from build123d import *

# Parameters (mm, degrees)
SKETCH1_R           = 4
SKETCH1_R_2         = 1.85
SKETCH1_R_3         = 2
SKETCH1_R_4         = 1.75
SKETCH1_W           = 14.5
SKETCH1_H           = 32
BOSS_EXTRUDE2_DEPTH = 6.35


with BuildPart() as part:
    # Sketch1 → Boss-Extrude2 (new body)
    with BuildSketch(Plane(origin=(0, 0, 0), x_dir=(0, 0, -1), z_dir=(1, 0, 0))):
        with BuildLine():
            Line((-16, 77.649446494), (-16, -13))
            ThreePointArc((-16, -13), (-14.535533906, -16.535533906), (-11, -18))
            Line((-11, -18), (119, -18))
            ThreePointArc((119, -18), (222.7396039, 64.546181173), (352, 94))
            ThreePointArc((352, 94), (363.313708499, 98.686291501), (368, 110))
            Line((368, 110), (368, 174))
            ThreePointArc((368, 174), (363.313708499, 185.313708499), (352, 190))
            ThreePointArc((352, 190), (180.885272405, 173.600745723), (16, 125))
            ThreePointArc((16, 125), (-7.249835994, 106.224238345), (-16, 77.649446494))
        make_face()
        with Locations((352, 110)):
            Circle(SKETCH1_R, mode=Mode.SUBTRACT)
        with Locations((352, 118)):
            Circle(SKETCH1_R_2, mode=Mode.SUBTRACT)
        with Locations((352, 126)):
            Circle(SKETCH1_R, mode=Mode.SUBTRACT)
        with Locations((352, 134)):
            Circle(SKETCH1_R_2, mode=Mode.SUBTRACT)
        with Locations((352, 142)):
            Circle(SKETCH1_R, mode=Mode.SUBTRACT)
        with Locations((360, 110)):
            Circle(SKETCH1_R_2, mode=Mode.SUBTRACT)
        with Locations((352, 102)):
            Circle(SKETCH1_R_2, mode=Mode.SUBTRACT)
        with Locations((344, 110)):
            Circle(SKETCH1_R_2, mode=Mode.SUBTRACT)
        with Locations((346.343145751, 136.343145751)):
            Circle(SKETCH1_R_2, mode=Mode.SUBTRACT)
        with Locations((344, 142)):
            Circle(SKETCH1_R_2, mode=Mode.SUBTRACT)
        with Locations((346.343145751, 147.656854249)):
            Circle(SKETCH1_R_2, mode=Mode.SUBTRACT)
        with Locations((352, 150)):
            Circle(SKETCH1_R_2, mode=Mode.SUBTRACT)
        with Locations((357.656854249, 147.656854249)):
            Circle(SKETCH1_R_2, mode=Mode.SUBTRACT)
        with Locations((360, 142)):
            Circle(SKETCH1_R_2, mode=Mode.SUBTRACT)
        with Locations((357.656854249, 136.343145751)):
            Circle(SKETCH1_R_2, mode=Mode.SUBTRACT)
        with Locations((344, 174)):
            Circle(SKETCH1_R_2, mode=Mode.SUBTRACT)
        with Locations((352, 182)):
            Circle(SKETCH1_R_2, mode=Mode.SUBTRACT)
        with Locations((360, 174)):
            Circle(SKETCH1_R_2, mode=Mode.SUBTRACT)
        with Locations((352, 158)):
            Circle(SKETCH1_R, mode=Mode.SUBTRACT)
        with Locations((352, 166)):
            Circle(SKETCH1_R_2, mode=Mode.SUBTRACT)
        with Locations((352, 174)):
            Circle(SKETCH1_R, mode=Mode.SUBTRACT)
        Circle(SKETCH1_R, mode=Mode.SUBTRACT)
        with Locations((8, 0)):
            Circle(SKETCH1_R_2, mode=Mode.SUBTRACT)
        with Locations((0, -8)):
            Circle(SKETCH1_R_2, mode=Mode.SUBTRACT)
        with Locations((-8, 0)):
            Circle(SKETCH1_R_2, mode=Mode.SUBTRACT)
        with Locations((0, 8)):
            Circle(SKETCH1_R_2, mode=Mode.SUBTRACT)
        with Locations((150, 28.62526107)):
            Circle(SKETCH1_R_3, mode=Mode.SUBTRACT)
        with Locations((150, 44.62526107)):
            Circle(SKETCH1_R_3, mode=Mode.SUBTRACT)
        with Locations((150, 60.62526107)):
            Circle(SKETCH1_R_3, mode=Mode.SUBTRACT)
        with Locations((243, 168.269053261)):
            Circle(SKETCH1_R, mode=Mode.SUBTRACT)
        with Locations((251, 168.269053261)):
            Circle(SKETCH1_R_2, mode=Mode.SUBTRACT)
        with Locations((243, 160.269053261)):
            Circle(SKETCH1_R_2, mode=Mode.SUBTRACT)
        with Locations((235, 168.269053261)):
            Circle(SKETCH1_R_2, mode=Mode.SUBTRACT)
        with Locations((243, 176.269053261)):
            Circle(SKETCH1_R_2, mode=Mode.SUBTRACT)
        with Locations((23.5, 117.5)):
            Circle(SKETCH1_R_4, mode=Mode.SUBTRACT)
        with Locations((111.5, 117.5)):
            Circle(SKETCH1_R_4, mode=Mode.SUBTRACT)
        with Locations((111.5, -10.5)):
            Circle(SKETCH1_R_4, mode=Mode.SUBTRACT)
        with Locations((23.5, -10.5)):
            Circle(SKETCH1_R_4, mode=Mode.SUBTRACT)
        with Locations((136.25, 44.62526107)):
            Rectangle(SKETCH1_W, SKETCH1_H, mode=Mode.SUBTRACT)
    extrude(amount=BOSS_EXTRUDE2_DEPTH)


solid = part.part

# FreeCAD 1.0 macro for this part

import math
import FreeCAD as App
import Part
import Sketcher


def add_polygon(sketch, points):
    """Adds a closed chain of lines whose ends are joined by coincident constraints."""
    first, n = sketch.GeometryCount, len(points)
    for a, b in zip(points, points[1:] + points[:1]):
        sketch.addGeometry(Part.LineSegment(App.Vector(*a, 0), App.Vector(*b, 0)), False)
    for i in range(n):
        sketch.addConstraint(Sketcher.Constraint("Coincident", first + i, 2, first + (i + 1) % n, 1))

doc = App.newDocument("Part")
params = doc.addObject("Spreadsheet::Sheet", "Params")
for row, (alias, value) in enumerate([
    ("sketch1_diameter", "8 mm"),
    ("sketch1_diameter2", "4 mm"),
    ("sketch1_radius", "5 mm"),
    ("sketch1_radius2", "16 mm"),
    ("sketch1_diameter3", "3.7 mm"),
    ("pad1_length", "6.35 mm"),
], start=1):
    params.set(f"A{row}", alias)
    params.set(f"B{row}", "=" + value)
    params.setAlias(f"B{row}", alias)

body = doc.addObject("PartDesign::Body", "Body")

sketch1 = body.newObject("Sketcher::SketchObject", "Sketch")
sketch1.AttachmentSupport = (doc.getObject("YZ_Plane"), [""])
sketch1.MapMode = "FlatFace"
sketch1.addGeometry(Part.LineSegment(App.Vector(77.6, 16, 0), App.Vector(-13, 16, 0)), False)
sketch1.addGeometry(Part.ArcOfCircle(Part.Circle(App.Vector(-13, 11, 0), App.Vector(0, 0, 1), 5), math.radians(90), math.radians(180)), False)
sketch1.addGeometry(Part.LineSegment(App.Vector(-18, 11, 0), App.Vector(-18, -119, 0)), False)
sketch1.addGeometry(Part.ArcOfCircle(Part.Circle(App.Vector(-204.4, -352, 0), App.Vector(0, 0, 1), 298.4), math.radians(0), math.radians(51)), False)
sketch1.addGeometry(Part.ArcOfCircle(Part.Circle(App.Vector(110, -352, 0), App.Vector(0, 0, 1), 16), math.radians(180), math.radians(270)), False)
sketch1.addGeometry(Part.LineSegment(App.Vector(110, -368, 0), App.Vector(174, -368, 0)), False)
sketch1.addGeometry(Part.ArcOfCircle(Part.Circle(App.Vector(174, -352, 0), App.Vector(0, 0, 1), 16), math.radians(-90), math.radians(0)), False)
sketch1.addGeometry(Part.ArcOfCircle(Part.Circle(App.Vector(-710.9, -352, 0), App.Vector(0, 0, 1), 900.9), math.radians(0), math.radians(22)), False)
sketch1.addGeometry(Part.ArcOfCircle(Part.Circle(App.Vector(77.6, -35, 0), App.Vector(0, 0, 1), 51), math.radians(22), math.radians(90)), False)
sketch1.addGeometry(Part.Circle(App.Vector(-8, 0, 0), App.Vector(0, 0, 1), 1.9), False)
sketch1.addGeometry(Part.Circle(App.Vector(0, 8, 0), App.Vector(0, 0, 1), 1.9), False)
sketch1.addGeometry(Part.Circle(App.Vector(0, 0, 0), App.Vector(0, 0, 1), 4), False)
sketch1.addGeometry(Part.Circle(App.Vector(0, -8, 0), App.Vector(0, 0, 1), 1.9), False)
sketch1.addGeometry(Part.Circle(App.Vector(-10.5, -23.5, 0), App.Vector(0, 0, 1), 1.8), False)
sketch1.addGeometry(Part.Circle(App.Vector(8, 0, 0), App.Vector(0, 0, 1), 1.9), False)
sketch1.addGeometry(Part.Circle(App.Vector(-10.5, -111.5, 0), App.Vector(0, 0, 1), 1.8), False)
sketch1.addGeometry(Part.Circle(App.Vector(28.6, -150, 0), App.Vector(0, 0, 1), 2), False)
add_polygon(sketch1, [(28.6, -143.5), (28.6, -129), (60.6, -129), (60.6, -143.5)])
sketch1.addGeometry(Part.Circle(App.Vector(44.6, -150, 0), App.Vector(0, 0, 1), 2), False)
sketch1.addGeometry(Part.Circle(App.Vector(60.6, -150, 0), App.Vector(0, 0, 1), 2), False)
sketch1.addGeometry(Part.Circle(App.Vector(117.5, -23.5, 0), App.Vector(0, 0, 1), 1.8), False)
sketch1.addGeometry(Part.Circle(App.Vector(117.5, -111.5, 0), App.Vector(0, 0, 1), 1.8), False)
sketch1.addGeometry(Part.Circle(App.Vector(102, -352, 0), App.Vector(0, 0, 1), 1.9), False)
sketch1.addGeometry(Part.Circle(App.Vector(110, -344, 0), App.Vector(0, 0, 1), 1.9), False)
sketch1.addGeometry(Part.Circle(App.Vector(110, -352, 0), App.Vector(0, 0, 1), 4), False)
sketch1.addGeometry(Part.Circle(App.Vector(110, -360, 0), App.Vector(0, 0, 1), 1.9), False)
sketch1.addGeometry(Part.Circle(App.Vector(118, -352, 0), App.Vector(0, 0, 1), 1.9), False)
sketch1.addGeometry(Part.Circle(App.Vector(126, -352, 0), App.Vector(0, 0, 1), 4), False)
sketch1.addGeometry(Part.Circle(App.Vector(134, -352, 0), App.Vector(0, 0, 1), 1.9), False)
sketch1.addGeometry(Part.Circle(App.Vector(160.3, -243, 0), App.Vector(0, 0, 1), 1.9), False)
sketch1.addGeometry(Part.Circle(App.Vector(168.3, -235, 0), App.Vector(0, 0, 1), 1.9), False)
sketch1.addGeometry(Part.Circle(App.Vector(168.3, -243, 0), App.Vector(0, 0, 1), 4), False)
sketch1.addGeometry(Part.Circle(App.Vector(168.3, -251, 0), App.Vector(0, 0, 1), 1.9), False)
sketch1.addGeometry(Part.Circle(App.Vector(176.3, -243, 0), App.Vector(0, 0, 1), 1.9), False)
sketch1.addGeometry(Part.Circle(App.Vector(136.3, -346.3, 0), App.Vector(0, 0, 1), 1.9), False)
sketch1.addGeometry(Part.Circle(App.Vector(136.3, -357.7, 0), App.Vector(0, 0, 1), 1.9), False)
sketch1.addGeometry(Part.Circle(App.Vector(142, -344, 0), App.Vector(0, 0, 1), 1.9), False)
sketch1.addGeometry(Part.Circle(App.Vector(142, -352, 0), App.Vector(0, 0, 1), 4), False)
sketch1.addGeometry(Part.Circle(App.Vector(142, -360, 0), App.Vector(0, 0, 1), 1.9), False)
sketch1.addGeometry(Part.Circle(App.Vector(147.7, -346.3, 0), App.Vector(0, 0, 1), 1.9), False)
sketch1.addGeometry(Part.Circle(App.Vector(150, -352, 0), App.Vector(0, 0, 1), 1.9), False)
sketch1.addGeometry(Part.Circle(App.Vector(147.7, -357.7, 0), App.Vector(0, 0, 1), 1.9), False)
sketch1.addGeometry(Part.Circle(App.Vector(158, -352, 0), App.Vector(0, 0, 1), 4), False)
sketch1.addGeometry(Part.Circle(App.Vector(166, -352, 0), App.Vector(0, 0, 1), 1.9), False)
sketch1.addGeometry(Part.Circle(App.Vector(174, -344, 0), App.Vector(0, 0, 1), 1.9), False)
sketch1.addGeometry(Part.Circle(App.Vector(174, -352, 0), App.Vector(0, 0, 1), 4), False)
sketch1.addGeometry(Part.Circle(App.Vector(174, -360, 0), App.Vector(0, 0, 1), 1.9), False)
sketch1.addGeometry(Part.Circle(App.Vector(182, -352, 0), App.Vector(0, 0, 1), 1.9), False)
sketch1.addConstraint(Sketcher.Constraint("Tangent", 0, 2, 1, 1))
sketch1.addConstraint(Sketcher.Constraint("Tangent", 1, 2, 2, 1))
sketch1.addConstraint(Sketcher.Constraint("Coincident", 2, 2, 3, 2))
sketch1.addConstraint(Sketcher.Constraint("Tangent", 3, 1, 4, 1))
sketch1.addConstraint(Sketcher.Constraint("Tangent", 4, 2, 5, 1))
sketch1.addConstraint(Sketcher.Constraint("Tangent", 5, 2, 6, 1))
sketch1.addConstraint(Sketcher.Constraint("Tangent", 6, 2, 7, 1))
sketch1.addConstraint(Sketcher.Constraint("Tangent", 7, 2, 8, 1))
sketch1.addConstraint(Sketcher.Constraint("Tangent", 8, 2, 0, 1))
sketch1.addConstraint(Sketcher.Constraint("Horizontal", 0))
sketch1.addConstraint(Sketcher.Constraint("Vertical", 2))
sketch1.addConstraint(Sketcher.Constraint("Horizontal", 5))
sketch1.addConstraint(Sketcher.Constraint("Vertical", 17))
sketch1.addConstraint(Sketcher.Constraint("Horizontal", 18))
sketch1.addConstraint(Sketcher.Constraint("Vertical", 19))
sketch1.addConstraint(Sketcher.Constraint("Horizontal", 20))
sketch1.addConstraint(Sketcher.Constraint("Coincident", 11, 3, -1, 1))
sketch1.addConstraint(Sketcher.Constraint("Coincident", 27, 3, 4, 3))
sketch1.addConstraint(Sketcher.Constraint("Coincident", 48, 3, 6, 3))
sketch1.addConstraint(Sketcher.Constraint("Equal", 4, 6))
sketch1.addConstraint(Sketcher.Constraint("Equal", 9, 10))
sketch1.addConstraint(Sketcher.Constraint("Equal", 10, 12))
sketch1.addConstraint(Sketcher.Constraint("Equal", 12, 14))
sketch1.addConstraint(Sketcher.Constraint("Equal", 13, 15))
sketch1.addConstraint(Sketcher.Constraint("Equal", 16, 21))
sketch1.addConstraint(Sketcher.Constraint("Equal", 21, 22))
sketch1.addConstraint(Sketcher.Constraint("Equal", 15, 23))
sketch1.addConstraint(Sketcher.Constraint("Equal", 23, 24))
sketch1.addConstraint(Sketcher.Constraint("Equal", 14, 25))
sketch1.addConstraint(Sketcher.Constraint("Equal", 25, 26))
sketch1.addConstraint(Sketcher.Constraint("Equal", 11, 27))
sketch1.addConstraint(Sketcher.Constraint("Equal", 26, 28))
sketch1.addConstraint(Sketcher.Constraint("Equal", 28, 29))
sketch1.addConstraint(Sketcher.Constraint("Equal", 27, 30))
sketch1.addConstraint(Sketcher.Constraint("Equal", 29, 31))
sketch1.addConstraint(Sketcher.Constraint("Equal", 31, 32))
sketch1.addConstraint(Sketcher.Constraint("Equal", 32, 33))
sketch1.addConstraint(Sketcher.Constraint("Equal", 30, 34))
sketch1.addConstraint(Sketcher.Constraint("Equal", 33, 35))
sketch1.addConstraint(Sketcher.Constraint("Equal", 35, 36))
sketch1.addConstraint(Sketcher.Constraint("Equal", 36, 37))
sketch1.addConstraint(Sketcher.Constraint("Equal", 37, 38))
sketch1.addConstraint(Sketcher.Constraint("Equal", 38, 39))
sketch1.addConstraint(Sketcher.Constraint("Equal", 34, 40))
sketch1.addConstraint(Sketcher.Constraint("Equal", 39, 41))
sketch1.addConstraint(Sketcher.Constraint("Equal", 41, 42))
sketch1.addConstraint(Sketcher.Constraint("Equal", 42, 43))
sketch1.addConstraint(Sketcher.Constraint("Equal", 43, 44))
sketch1.addConstraint(Sketcher.Constraint("Equal", 40, 45))
sketch1.addConstraint(Sketcher.Constraint("Equal", 44, 46))
sketch1.addConstraint(Sketcher.Constraint("Equal", 46, 47))
sketch1.addConstraint(Sketcher.Constraint("Equal", 45, 48))
sketch1.addConstraint(Sketcher.Constraint("Equal", 47, 49))
sketch1.addConstraint(Sketcher.Constraint("Equal", 49, 50))
sketch1.addConstraint(Sketcher.Constraint("Symmetric", 10, 3, 12, 3, -1, 1))
sketch1.addConstraint(Sketcher.Constraint("Symmetric", 9, 3, 14, 3, -1, 1))
sketch1.addConstraint(Sketcher.Constraint("PointOnObject", 9, 3, -1))
sketch1.addConstraint(Sketcher.Constraint("PointOnObject", 10, 3, -2))
sketch1.addConstraint(Sketcher.Constraint("Horizontal", 3, 3, 4, 3))
sketch1.addConstraint(Sketcher.Constraint("Horizontal", 6, 3, 7, 3))
sketch1.addConstraint(Sketcher.Constraint("Horizontal", 16, 3, 21, 3))
sketch1.addConstraint(Sketcher.Constraint("Horizontal", 21, 3, 22, 3))
sketch1.addConstraint(Sketcher.Constraint("Horizontal", 13, 3, 23, 3))
sketch1.addConstraint(Sketcher.Constraint("Horizontal", 15, 3, 24, 3))
sketch1.addConstraint(Sketcher.Constraint("Horizontal", 7, 3, 25, 3))
sketch1.addConstraint(Sketcher.Constraint("Horizontal", 27, 3, 29, 3))
sketch1.addConstraint(Sketcher.Constraint("Horizontal", 29, 3, 30, 3))
sketch1.addConstraint(Sketcher.Constraint("Horizontal", 30, 3, 31, 3))
sketch1.addConstraint(Sketcher.Constraint("Horizontal", 32, 3, 34, 3))
sketch1.addConstraint(Sketcher.Constraint("Horizontal", 34, 3, 36, 3))
sketch1.addConstraint(Sketcher.Constraint("Horizontal", 26, 3, 39, 3))
sketch1.addConstraint(Sketcher.Constraint("Horizontal", 31, 3, 40, 3))
sketch1.addConstraint(Sketcher.Constraint("Horizontal", 28, 3, 41, 3))
sketch1.addConstraint(Sketcher.Constraint("Horizontal", 37, 3, 42, 3))
sketch1.addConstraint(Sketcher.Constraint("Horizontal", 40, 3, 43, 3))
sketch1.addConstraint(Sketcher.Constraint("Horizontal", 38, 3, 44, 3))
sketch1.addConstraint(Sketcher.Constraint("Horizontal", 43, 3, 45, 3))
sketch1.addConstraint(Sketcher.Constraint("Horizontal", 45, 3, 46, 3))
sketch1.addConstraint(Sketcher.Constraint("Horizontal", 39, 3, 47, 3))
sketch1.addConstraint(Sketcher.Constraint("Horizontal", 41, 3, 49, 3))
sketch1.addConstraint(Sketcher.Constraint("Horizontal", 48, 3, 50, 3))
sketch1.addConstraint(Sketcher.Constraint("Vertical", 13, 3, 15, 3))
sketch1.addConstraint(Sketcher.Constraint("Vertical", 23, 3, 24, 3))
sketch1.addConstraint(Sketcher.Constraint("Vertical", 4, 3, 26, 3))
sketch1.addConstraint(Sketcher.Constraint("Vertical", 27, 3, 28, 3))
sketch1.addConstraint(Sketcher.Constraint("Vertical", 33, 3, 34, 3))
sketch1.addConstraint(Sketcher.Constraint("Vertical", 34, 3, 35, 3))
sketch1.addConstraint(Sketcher.Constraint("Vertical", 37, 3, 38, 3))
sketch1.addConstraint(Sketcher.Constraint("Vertical", 39, 3, 40, 3))
sketch1.addConstraint(Sketcher.Constraint("Vertical", 40, 3, 41, 3))
sketch1.addConstraint(Sketcher.Constraint("Vertical", 42, 3, 44, 3))
sketch1.addConstraint(Sketcher.Constraint("Vertical", 6, 3, 47, 3))
sketch1.addConstraint(Sketcher.Constraint("Vertical", 48, 3, 49, 3))
sketch1.addConstraint(Sketcher.Constraint("Vertical", 16, 3, 17, 2))
sketch1.addConstraint(Sketcher.Constraint("Vertical", 22, 3, 18, 2))
sketch1.addConstraint(Sketcher.Constraint("Diameter", 11, 8.0))
sketch1.addConstraint(Sketcher.Constraint("Diameter", 16, 4.0))
sketch1.addConstraint(Sketcher.Constraint("Radius", 1, 5.0))
sketch1.addConstraint(Sketcher.Constraint("Radius", 4, 16.0))
sketch1.addConstraint(Sketcher.Constraint("Diameter", 9, 3.7))
sketch1.addConstraint(Sketcher.Constraint("Diameter", 13, 3.5))
sketch1.addConstraint(Sketcher.Constraint("DistanceX", 5, 1, 5, 2, 64.0))
sketch1.addConstraint(Sketcher.Constraint("DistanceX", 18, 1, 18, 2, 32.0))
sketch1.addConstraint(Sketcher.Constraint("DistanceY", 2, 2, 2, 1, 130.0))
sketch1.addConstraint(Sketcher.Constraint("DistanceY", 17, 1, 17, 2, 14.5))
sketch1.addConstraint(Sketcher.Constraint("DistanceX", 1, 3, -1, 1, 13.0))
sketch1.addConstraint(Sketcher.Constraint("DistanceY", -1, 1, 1, 3, 11.0))
sketch1.addConstraint(Sketcher.Constraint("DistanceY", 3, 3, -1, 1, 352.0))
sketch1.addConstraint(Sketcher.Constraint("DistanceX", -1, 1, 4, 3, 110.0))
sketch1.addConstraint(Sketcher.Constraint("DistanceX", 9, 3, -1, 1, 8.0))
sketch1.addConstraint(Sketcher.Constraint("DistanceY", -1, 1, 10, 3, 8.0))
sketch1.addConstraint(Sketcher.Constraint("DistanceY", 16, 3, -1, 1, 150.0))
sketch1.addConstraint(Sketcher.Constraint("DistanceX", -1, 1, 25, 3, 102.0))
sketch1.addConstraint(Sketcher.Constraint("DistanceY", 26, 3, -1, 1, 344.0))
sketch1.addConstraint(Sketcher.Constraint("DistanceY", 28, 3, -1, 1, 360.0))
sketch1.addConstraint(Sketcher.Constraint("DistanceX", -1, 1, 29, 3, 118.0))
sketch1.addConstraint(Sketcher.Constraint("DistanceX", -1, 1, 30, 3, 126.0))
sketch1.addConstraint(Sketcher.Constraint("DistanceX", -1, 1, 31, 3, 134.0))
sketch1.addConstraint(Sketcher.Constraint("DistanceY", 32, 3, -1, 1, 243.0))
sketch1.addConstraint(Sketcher.Constraint("DistanceY", 33, 3, -1, 1, 235.0))
sketch1.addConstraint(Sketcher.Constraint("DistanceY", 35, 3, -1, 1, 251.0))
sketch1.addConstraint(Sketcher.Constraint("DistanceX", -1, 1, 39, 3, 142.0))
sketch1.addConstraint(Sketcher.Constraint("DistanceX", -1, 1, 43, 3, 150.0))
sketch1.addConstraint(Sketcher.Constraint("DistanceX", -1, 1, 45, 3, 158.0))
sketch1.addConstraint(Sketcher.Constraint("DistanceX", -1, 1, 46, 3, 166.0))
sketch1.addConstraint(Sketcher.Constraint("DistanceX", -1, 1, 50, 3, 182.0))
sketch1.addConstraint(Sketcher.Constraint("DistanceY", 17, 2, -1, 1, 129.0))
sketch1.addConstraint(Sketcher.Constraint("DistanceY", 15, 3, 13, 3, 88.0))
sketch1.addConstraint(Sketcher.Constraint("DistanceX", 16, 3, 21, 3, 16.0))
sketch1.addConstraint(Sketcher.Constraint("DistanceX", 32, 3, 33, 3, 8.0))
sketch1.addConstraint(Sketcher.Constraint("DistanceX", 34, 3, 36, 3, 8.0))
sketch1.addConstraint(Sketcher.Constraint("DistanceX", 13, 3, -1, 1, 10.5))
sketch1.addConstraint(Sketcher.Constraint("DistanceY", 13, 3, -1, 1, 23.5))
sketch1.addConstraint(Sketcher.Constraint("DistanceX", -1, 1, 23, 3, 117.5))
sketch1.addConstraint(Sketcher.Constraint("Radius", 7, 900.930769))
sketch1.addConstraint(Sketcher.Constraint("Radius", 8, 51.032421))
sketch1.addConstraint(Sketcher.Constraint("DistanceX", -1, 1, 16, 3, 28.625261))
sketch1.addConstraint(Sketcher.Constraint("DistanceY", 38, 3, 37, 3, 11.313708))
sketch1.addConstraint(Sketcher.Constraint("DistanceX", 37, 3, 42, 3, 11.313708))
sketch1.addConstraint(Sketcher.Constraint("DistanceX", -1, 1, 32, 3, 160.269053))
sketch1.addConstraint(Sketcher.Constraint("DistanceX", -1, 1, 37, 3, 136.343146))
sketch1.addConstraint(Sketcher.Constraint("DistanceY", 37, 3, -1, 1, 346.343146))
sketch1.setExpression("Constraints[99]", "Params.sketch1_diameter")
sketch1.setExpression("Constraints[100]", "Params.sketch1_diameter2")
sketch1.setExpression("Constraints[101]", "Params.sketch1_radius")
sketch1.setExpression("Constraints[102]", "Params.sketch1_radius2")
sketch1.setExpression("Constraints[103]", "Params.sketch1_diameter3")
pad1 = body.newObject("PartDesign::Pad", "Pad")
pad1.Profile = sketch1
pad1.setExpression("Length", "Params.pad1_length")

doc.recompute()
